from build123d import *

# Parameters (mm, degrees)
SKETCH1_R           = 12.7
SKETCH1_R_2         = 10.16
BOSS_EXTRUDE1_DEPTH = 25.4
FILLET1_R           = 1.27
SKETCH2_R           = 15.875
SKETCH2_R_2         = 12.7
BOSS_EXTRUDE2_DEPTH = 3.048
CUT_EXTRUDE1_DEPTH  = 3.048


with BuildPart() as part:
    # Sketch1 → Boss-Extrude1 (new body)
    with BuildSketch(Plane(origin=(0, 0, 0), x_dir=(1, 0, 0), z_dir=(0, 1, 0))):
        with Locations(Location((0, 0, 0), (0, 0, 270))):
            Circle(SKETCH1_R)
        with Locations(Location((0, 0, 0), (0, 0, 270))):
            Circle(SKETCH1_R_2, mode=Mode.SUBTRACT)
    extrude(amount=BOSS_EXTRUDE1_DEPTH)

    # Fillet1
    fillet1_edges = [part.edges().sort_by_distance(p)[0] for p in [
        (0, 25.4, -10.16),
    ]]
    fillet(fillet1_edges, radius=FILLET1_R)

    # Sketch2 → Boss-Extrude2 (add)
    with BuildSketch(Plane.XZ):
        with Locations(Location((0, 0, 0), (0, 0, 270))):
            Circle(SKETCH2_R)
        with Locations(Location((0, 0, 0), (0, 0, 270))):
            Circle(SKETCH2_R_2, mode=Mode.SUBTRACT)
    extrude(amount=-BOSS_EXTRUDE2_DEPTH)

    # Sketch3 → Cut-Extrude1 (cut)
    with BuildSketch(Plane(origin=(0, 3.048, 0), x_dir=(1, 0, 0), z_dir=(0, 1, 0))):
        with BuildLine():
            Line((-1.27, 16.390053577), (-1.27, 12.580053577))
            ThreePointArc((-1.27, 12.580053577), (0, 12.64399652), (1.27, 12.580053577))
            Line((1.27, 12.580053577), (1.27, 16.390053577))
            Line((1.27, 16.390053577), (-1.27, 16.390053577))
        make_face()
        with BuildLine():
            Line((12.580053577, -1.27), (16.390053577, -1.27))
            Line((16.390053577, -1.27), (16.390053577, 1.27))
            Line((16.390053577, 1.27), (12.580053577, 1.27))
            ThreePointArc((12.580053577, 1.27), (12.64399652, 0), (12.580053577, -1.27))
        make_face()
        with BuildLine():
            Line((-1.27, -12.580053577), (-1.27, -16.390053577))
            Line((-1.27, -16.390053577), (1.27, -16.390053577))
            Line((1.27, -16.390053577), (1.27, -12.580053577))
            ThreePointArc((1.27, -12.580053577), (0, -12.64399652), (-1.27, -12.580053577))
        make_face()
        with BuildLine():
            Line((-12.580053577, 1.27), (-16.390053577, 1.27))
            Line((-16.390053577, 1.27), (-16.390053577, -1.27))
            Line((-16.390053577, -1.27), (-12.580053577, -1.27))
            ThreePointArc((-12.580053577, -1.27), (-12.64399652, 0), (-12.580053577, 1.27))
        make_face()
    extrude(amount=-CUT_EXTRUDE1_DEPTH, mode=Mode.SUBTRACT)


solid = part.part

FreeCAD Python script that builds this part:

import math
import FreeCAD as App
import Part
import Sketcher

V = App.Vector
Q = App.Units.Quantity


def edges_at(feature, points):
    """Names of the edges that pass closest to the given points."""
    edges = feature.Shape.Edges
    near = lambda p: min(range(len(edges)), key=lambda i: edges[i].distToShape(Part.Vertex(*p))[0])
    return sorted({f"Edge{near(p) + 1}" for p in points})

doc = App.newDocument("Part")
body = doc.addObject("PartDesign::Body", "Body")

sketch1 = doc.addObject("Sketcher::SketchObject", "Sketch")
body.addObject(sketch1)
sketch1.AttachmentSupport = (doc.XZ_Plane, [""])
sketch1.MapMode = "FlatFace"
sketch1.addGeometry([
    Part.Circle(V(0, 0, 0), V(0, 0, 1), 13),
    Part.Circle(V(0, 0, 0), V(0, 0, 1), 10),
], False)
sketch1.addConstraint([
    Sketcher.Constraint("Coincident", 0, 3, -1, 1),
    Sketcher.Constraint("Coincident", 1, 3, -1, 1),
    Sketcher.Constraint("Diameter", 0, Q("1 in")),
    Sketcher.Constraint("Diameter", 1, Q("0.8 in")),
])
pad1 = doc.addObject("PartDesign::Pad", "Pad")
body.addObject(pad1)
pad1.Profile = sketch1
pad1.Length = Q("1 in")
pad1.Reversed = True
doc.recompute()

fillet = doc.addObject("PartDesign::Fillet", "Fillet")
body.addObject(fillet)
fillet.Base = (pad1, edges_at(pad1, [(0, 25.4, -10.16)]))
fillet.Radius = Q("0.05 in")

sketch2 = doc.addObject("Sketcher::SketchObject", "Sketch001")
body.addObject(sketch2)
sketch2.AttachmentSupport = (doc.XZ_Plane, [""])
sketch2.MapMode = "FlatFace"
sketch2.addGeometry([
    Part.Circle(V(0, 0, 0), V(0, 0, 1), 16),
    Part.Circle(V(0, 0, 0), V(0, 0, 1), 13),
], False)
sketch2.addConstraint([
    Sketcher.Constraint("Coincident", 0, 3, -1, 1),
    Sketcher.Constraint("Coincident", 1, 3, -1, 1),
    Sketcher.Constraint("Diameter", 1, Q("1 in")),
    Sketcher.Constraint("Diameter", 0, Q("1.25 in")),
])
pad2 = doc.addObject("PartDesign::Pad", "Pad001")
body.addObject(pad2)
pad2.Profile = sketch2
pad2.Length = Q("0.12 in")
pad2.Reversed = True

sketch3 = doc.addObject("Sketcher::SketchObject", "Sketch002")
body.addObject(sketch3)
sketch3.AttachmentSupport = (doc.XZ_Plane, [""])
sketch3.MapMode = "FlatFace"
sketch3.AttachmentOffset = App.Placement(V(0, 0, -0.12 * 25.4), App.Rotation())
sketch3.addGeometry([
    Part.LineSegment(V(-1.3, -16.4, 0), V(-1.3, -12.6, 0)),
    Part.ArcOfCircle(Part.Circle(V(0, 0, 0), V(0, 0, 1), 12.6), math.radians(-95.76), math.radians(-84.24)),
    Part.LineSegment(V(1.3, -12.6, 0), V(1.3, -16.4, 0)),
    Part.LineSegment(V(1.3, -16.4, 0), V(-1.3, -16.4, 0)),
    Part.LineSegment(V(12.6, 1.3, 0), V(16.4, 1.3, 0)),
    Part.LineSegment(V(16.4, 1.3, 0), V(16.4, -1.3, 0)),
    Part.LineSegment(V(16.4, -1.3, 0), V(12.6, -1.3, 0)),
    Part.ArcOfCircle(Part.Circle(V(0, 0, 0), V(0, 0, 1), 12.6), math.radians(-5.76), math.radians(5.76)),
    Part.LineSegment(V(-1.3, 12.6, 0), V(-1.3, 16.4, 0)),
    Part.LineSegment(V(-1.3, 16.4, 0), V(1.3, 16.4, 0)),
    Part.LineSegment(V(1.3, 16.4, 0), V(1.3, 12.6, 0)),
    Part.ArcOfCircle(Part.Circle(V(0, 0, 0), V(0, 0, 1), 12.6), math.radians(84.24), math.radians(95.76)),
    Part.LineSegment(V(-12.6, -1.3, 0), V(-16.4, -1.3, 0)),
    Part.LineSegment(V(-16.4, -1.3, 0), V(-16.4, 1.3, 0)),
    Part.LineSegment(V(-16.4, 1.3, 0), V(-12.6, 1.3, 0)),
    Part.ArcOfCircle(Part.Circle(V(0, 0, 0), V(0, 0, 1), 12.6), math.radians(174.24), math.radians(185.76)),
], False)
sketch3.addConstraint([
    Sketcher.Constraint("Coincident", 0, 2, 1, 1),
    Sketcher.Constraint("Coincident", 1, 2, 2, 1),
    Sketcher.Constraint("Coincident", 2, 2, 3, 1),
    Sketcher.Constraint("Coincident", 3, 2, 0, 1),
    Sketcher.Constraint("Coincident", 4, 2, 5, 1),
    Sketcher.Constraint("Coincident", 5, 2, 6, 1),
    Sketcher.Constraint("Coincident", 6, 2, 7, 1),
    Sketcher.Constraint("Coincident", 7, 2, 4, 1),
    Sketcher.Constraint("Coincident", 8, 2, 9, 1),
    Sketcher.Constraint("Coincident", 9, 2, 10, 1),
    Sketcher.Constraint("Coincident", 10, 2, 11, 1),
    Sketcher.Constraint("Coincident", 11, 2, 8, 1),
    Sketcher.Constraint("Coincident", 12, 2, 13, 1),
    Sketcher.Constraint("Coincident", 13, 2, 14, 1),
    Sketcher.Constraint("Coincident", 14, 2, 15, 1),
    Sketcher.Constraint("Coincident", 15, 2, 12, 1),
    Sketcher.Constraint("Vertical", 0),
    Sketcher.Constraint("Vertical", 2),
    Sketcher.Constraint("Horizontal", 3),
    Sketcher.Constraint("Horizontal", 4),
    Sketcher.Constraint("Vertical", 5),
    Sketcher.Constraint("Horizontal", 6),
    Sketcher.Constraint("Vertical", 8),
    Sketcher.Constraint("Horizontal", 9),
    Sketcher.Constraint("Vertical", 10),
    Sketcher.Constraint("Horizontal", 12),
    Sketcher.Constraint("Vertical", 13),
    Sketcher.Constraint("Horizontal", 14),
    Sketcher.Constraint("Coincident", 1, 3, -1, 1),
    Sketcher.Constraint("Coincident", 7, 3, -1, 1),
    Sketcher.Constraint("Coincident", 11, 3, -1, 1),
    Sketcher.Constraint("Coincident", 15, 3, -1, 1),
    Sketcher.Constraint("Equal", 1, 7),
    Sketcher.Constraint("Equal", 7, 11),
    Sketcher.Constraint("Equal", 11, 15),
    Sketcher.Constraint("Symmetric", 2, 2, 8, 2, -1, 1),
    Sketcher.Constraint("Symmetric", 4, 2, 12, 2, -1, 1),
    Sketcher.Constraint("Horizontal", 0, 2, 1, 2),
    Sketcher.Constraint("Horizontal", 10, 2, 11, 2),
    Sketcher.Constraint("Horizontal", 6, 2, 12, 2),
    Sketcher.Constraint("Horizontal", 7, 2, 13, 2),
    Sketcher.Constraint("Equal", 14, 0),
    Sketcher.Constraint("Equal", 9, 5),
    Sketcher.Constraint("DistanceX", 3, 2, 3, 1, Q("0.1 in")),
    Sketcher.Constraint("DistanceX", 4, 1, 4, 2, Q("0.15 in")),
    Sketcher.Constraint("Radius", 1, 12.643997),
])
pocket1 = doc.addObject("PartDesign::Pocket", "Pocket")
body.addObject(pocket1)
pocket1.Profile = sketch3
pocket1.Length = Q("0.12 in")
pocket1.Reversed = True

doc.recompute()
